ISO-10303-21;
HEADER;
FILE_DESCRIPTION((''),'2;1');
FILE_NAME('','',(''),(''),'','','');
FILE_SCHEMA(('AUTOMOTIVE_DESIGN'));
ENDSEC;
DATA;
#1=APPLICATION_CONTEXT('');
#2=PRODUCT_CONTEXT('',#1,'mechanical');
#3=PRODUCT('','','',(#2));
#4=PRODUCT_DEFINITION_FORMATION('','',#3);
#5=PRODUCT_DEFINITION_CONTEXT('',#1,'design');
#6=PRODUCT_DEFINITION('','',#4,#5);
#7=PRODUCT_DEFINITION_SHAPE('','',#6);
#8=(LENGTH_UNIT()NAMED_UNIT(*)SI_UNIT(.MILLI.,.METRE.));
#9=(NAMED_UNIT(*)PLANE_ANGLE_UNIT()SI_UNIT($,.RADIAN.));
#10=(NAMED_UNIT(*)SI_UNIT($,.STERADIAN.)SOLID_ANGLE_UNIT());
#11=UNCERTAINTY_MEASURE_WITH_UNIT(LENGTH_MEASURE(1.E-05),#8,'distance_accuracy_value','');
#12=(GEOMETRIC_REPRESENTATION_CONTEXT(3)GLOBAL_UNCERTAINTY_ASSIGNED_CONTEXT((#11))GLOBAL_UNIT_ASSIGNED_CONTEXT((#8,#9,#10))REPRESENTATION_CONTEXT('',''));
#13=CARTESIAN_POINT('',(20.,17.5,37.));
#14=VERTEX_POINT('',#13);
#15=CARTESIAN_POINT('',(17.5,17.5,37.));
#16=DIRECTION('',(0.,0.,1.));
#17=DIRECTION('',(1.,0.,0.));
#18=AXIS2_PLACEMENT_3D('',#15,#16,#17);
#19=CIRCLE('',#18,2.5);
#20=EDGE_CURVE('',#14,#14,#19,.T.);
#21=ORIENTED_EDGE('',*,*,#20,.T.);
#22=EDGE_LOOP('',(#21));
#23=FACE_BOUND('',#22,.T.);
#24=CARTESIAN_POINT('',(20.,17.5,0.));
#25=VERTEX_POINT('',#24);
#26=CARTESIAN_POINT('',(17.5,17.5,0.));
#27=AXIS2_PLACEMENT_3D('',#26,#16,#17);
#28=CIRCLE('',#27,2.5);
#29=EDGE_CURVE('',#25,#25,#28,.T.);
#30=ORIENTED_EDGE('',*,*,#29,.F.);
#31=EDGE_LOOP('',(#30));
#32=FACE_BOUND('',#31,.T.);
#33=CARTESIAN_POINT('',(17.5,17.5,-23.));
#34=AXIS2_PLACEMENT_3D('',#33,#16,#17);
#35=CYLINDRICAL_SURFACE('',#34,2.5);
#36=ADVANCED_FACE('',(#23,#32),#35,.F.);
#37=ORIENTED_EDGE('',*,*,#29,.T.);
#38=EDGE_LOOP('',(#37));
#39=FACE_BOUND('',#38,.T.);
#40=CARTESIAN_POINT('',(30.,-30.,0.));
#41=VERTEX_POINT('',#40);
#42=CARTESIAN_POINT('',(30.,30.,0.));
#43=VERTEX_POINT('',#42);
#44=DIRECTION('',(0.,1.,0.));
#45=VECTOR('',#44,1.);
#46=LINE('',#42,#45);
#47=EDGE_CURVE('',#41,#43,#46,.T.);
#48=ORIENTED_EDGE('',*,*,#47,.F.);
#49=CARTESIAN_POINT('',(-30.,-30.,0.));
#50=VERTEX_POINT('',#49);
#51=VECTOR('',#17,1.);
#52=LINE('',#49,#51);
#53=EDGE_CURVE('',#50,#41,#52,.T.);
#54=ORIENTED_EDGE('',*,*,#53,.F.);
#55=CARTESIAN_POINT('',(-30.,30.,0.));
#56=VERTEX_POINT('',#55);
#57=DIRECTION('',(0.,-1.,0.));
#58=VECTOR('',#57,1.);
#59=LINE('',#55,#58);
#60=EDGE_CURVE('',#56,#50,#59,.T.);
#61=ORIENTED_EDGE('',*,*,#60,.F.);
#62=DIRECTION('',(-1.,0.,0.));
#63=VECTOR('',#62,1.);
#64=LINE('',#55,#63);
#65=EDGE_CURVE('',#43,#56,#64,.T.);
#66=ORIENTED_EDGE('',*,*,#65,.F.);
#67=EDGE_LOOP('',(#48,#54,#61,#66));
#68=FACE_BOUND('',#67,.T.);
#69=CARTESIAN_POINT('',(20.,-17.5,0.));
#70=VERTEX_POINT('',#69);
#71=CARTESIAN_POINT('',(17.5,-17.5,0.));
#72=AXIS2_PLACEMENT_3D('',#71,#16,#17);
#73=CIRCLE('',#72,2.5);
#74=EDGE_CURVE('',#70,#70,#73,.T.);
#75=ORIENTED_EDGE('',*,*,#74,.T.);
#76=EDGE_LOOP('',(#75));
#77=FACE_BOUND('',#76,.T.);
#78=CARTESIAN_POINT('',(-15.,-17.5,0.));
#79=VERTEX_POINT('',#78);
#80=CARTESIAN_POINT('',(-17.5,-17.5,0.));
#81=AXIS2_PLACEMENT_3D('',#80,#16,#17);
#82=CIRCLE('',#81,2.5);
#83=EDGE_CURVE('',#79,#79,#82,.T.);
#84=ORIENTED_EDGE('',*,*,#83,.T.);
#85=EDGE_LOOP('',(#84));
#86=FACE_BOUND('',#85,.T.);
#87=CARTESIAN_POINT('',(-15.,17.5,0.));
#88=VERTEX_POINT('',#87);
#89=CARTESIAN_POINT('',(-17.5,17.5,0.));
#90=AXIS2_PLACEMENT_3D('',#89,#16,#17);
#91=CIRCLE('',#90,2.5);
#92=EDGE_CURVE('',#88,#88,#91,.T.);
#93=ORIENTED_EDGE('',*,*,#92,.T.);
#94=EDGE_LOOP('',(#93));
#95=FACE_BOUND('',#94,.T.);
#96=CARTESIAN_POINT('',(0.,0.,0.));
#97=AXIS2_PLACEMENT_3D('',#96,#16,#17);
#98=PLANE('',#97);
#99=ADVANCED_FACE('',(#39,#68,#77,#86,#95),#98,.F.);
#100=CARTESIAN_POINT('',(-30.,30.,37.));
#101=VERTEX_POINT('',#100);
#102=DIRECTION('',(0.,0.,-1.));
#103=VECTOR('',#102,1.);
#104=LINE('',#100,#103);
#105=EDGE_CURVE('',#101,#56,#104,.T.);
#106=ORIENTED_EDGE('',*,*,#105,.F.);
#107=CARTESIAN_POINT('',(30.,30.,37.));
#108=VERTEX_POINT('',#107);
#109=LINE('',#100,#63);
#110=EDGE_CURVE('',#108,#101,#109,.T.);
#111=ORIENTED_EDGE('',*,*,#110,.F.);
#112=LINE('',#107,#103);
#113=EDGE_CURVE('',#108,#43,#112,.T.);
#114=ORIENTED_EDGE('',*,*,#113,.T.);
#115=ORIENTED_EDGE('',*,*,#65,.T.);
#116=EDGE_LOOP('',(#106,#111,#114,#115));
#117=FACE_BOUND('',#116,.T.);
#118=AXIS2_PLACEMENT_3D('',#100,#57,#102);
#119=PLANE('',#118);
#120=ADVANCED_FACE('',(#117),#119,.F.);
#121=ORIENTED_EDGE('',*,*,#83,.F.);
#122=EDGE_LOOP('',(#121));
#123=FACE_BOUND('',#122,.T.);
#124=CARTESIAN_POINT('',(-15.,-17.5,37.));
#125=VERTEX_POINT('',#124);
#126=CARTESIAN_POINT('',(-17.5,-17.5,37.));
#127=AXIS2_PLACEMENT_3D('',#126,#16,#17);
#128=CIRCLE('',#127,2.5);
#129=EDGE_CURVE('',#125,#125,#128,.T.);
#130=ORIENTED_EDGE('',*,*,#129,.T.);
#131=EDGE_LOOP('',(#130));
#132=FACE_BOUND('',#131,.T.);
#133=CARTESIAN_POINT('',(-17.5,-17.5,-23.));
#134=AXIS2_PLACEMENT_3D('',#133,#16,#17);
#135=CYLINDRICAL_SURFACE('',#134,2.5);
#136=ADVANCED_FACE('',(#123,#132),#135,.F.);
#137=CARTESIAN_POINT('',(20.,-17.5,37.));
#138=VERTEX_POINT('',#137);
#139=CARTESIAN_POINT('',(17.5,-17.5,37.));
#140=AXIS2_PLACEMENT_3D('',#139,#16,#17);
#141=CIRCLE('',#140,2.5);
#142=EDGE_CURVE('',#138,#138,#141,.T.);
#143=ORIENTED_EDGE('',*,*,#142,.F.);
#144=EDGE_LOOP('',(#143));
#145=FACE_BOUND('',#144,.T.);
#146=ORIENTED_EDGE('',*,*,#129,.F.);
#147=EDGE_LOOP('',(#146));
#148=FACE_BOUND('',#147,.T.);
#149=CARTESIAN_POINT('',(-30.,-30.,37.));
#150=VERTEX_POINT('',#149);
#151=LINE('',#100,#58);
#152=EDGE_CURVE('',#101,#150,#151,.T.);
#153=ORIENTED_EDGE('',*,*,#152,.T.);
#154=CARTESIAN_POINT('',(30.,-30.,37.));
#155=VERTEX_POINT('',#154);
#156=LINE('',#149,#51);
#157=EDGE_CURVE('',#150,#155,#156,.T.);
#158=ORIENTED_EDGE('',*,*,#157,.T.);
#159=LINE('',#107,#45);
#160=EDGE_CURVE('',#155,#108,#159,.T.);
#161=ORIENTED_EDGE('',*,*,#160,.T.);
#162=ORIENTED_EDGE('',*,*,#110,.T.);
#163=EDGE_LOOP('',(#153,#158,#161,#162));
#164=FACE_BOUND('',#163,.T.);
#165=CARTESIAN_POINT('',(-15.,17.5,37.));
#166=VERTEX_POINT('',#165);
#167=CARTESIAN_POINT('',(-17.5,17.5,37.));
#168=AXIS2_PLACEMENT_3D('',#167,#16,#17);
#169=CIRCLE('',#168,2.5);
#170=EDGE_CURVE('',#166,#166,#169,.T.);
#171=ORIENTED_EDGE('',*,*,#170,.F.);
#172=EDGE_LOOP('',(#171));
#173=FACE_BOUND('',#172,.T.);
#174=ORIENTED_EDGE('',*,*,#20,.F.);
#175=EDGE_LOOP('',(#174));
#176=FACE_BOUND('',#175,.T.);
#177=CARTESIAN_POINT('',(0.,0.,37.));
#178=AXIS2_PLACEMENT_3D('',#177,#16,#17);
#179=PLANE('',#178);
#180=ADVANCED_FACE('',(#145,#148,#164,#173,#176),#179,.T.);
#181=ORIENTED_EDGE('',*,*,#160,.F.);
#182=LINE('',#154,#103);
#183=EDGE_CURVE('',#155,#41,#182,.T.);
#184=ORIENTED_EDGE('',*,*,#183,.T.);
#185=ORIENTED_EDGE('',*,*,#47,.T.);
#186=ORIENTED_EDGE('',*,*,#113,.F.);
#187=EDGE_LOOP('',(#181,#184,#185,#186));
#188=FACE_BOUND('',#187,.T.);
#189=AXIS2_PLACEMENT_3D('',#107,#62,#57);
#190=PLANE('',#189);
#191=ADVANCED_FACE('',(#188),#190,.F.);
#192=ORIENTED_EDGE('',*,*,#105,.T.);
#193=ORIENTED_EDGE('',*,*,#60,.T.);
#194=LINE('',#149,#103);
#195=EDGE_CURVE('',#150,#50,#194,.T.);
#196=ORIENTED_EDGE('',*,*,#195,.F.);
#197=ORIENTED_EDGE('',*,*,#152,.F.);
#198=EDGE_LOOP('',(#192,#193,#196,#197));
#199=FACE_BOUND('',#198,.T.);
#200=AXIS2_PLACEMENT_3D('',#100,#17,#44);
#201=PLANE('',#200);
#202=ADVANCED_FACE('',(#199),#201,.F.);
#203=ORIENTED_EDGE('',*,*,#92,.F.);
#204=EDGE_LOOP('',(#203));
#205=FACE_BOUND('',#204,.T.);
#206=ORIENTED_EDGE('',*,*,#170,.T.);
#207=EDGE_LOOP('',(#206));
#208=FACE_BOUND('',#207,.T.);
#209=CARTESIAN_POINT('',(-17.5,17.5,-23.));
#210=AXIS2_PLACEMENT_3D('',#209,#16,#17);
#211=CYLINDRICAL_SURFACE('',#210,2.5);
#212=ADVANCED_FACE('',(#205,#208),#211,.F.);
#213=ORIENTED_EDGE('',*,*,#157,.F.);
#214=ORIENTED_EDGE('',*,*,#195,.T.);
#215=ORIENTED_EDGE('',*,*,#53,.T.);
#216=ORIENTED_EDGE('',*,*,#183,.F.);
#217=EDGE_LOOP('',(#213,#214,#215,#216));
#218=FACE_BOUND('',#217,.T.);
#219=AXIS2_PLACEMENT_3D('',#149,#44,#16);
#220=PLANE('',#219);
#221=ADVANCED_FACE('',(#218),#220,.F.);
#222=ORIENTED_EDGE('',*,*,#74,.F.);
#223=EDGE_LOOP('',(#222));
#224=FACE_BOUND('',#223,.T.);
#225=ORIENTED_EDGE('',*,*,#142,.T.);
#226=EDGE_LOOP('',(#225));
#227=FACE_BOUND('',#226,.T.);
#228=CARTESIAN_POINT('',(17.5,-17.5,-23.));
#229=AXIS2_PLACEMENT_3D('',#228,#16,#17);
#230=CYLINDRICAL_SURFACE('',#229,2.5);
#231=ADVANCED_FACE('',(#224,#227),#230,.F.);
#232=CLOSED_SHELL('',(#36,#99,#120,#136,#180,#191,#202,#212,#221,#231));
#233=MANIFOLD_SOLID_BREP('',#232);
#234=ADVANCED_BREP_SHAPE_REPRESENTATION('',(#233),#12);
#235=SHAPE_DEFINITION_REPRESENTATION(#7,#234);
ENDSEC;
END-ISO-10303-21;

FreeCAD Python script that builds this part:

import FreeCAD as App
import Part
import Sketcher

V = App.Vector
Q = App.Units.Quantity


def add_polygon(sketch, points):
    """Adds a closed chain of lines whose ends are joined by coincident constraints."""
    first, n = sketch.GeometryCount, len(points)
    for a, b in zip(points, points[1:] + points[:1]):
        sketch.addGeometry(Part.LineSegment(App.Vector(*a, 0), App.Vector(*b, 0)), False)
    for i in range(n):
        sketch.addConstraint(Sketcher.Constraint("Coincident", first + i, 2, first + (i + 1) % n, 1))

doc = App.newDocument("Part")
body = doc.addObject("PartDesign::Body", "Body")

sketch1 = doc.addObject("Sketcher::SketchObject", "Sketch")
body.addObject(sketch1)
sketch1.AttachmentSupport = (doc.XY_Plane, [""])
sketch1.MapMode = "FlatFace"
add_polygon(sketch1, [(-30, 30), (-30, -30), (30, -30), (30, 30)])
sketch1.addConstraint(Sketcher.Constraint("Vertical", 0))
sketch1.addConstraint(Sketcher.Constraint("Horizontal", 1))
sketch1.addConstraint(Sketcher.Constraint("Vertical", 2))
sketch1.addConstraint(Sketcher.Constraint("Horizontal", 3))
sketch1.addConstraint(Sketcher.Constraint("Symmetric", 0, 2, 2, 2, -1, 1))
sketch1.addConstraint(Sketcher.Constraint("Equal", 3, 0))
sketch1.addConstraint(Sketcher.Constraint("DistanceX", 1, 1, 1, 2, Q("60 mm")))
pad1 = doc.addObject("PartDesign::Pad", "Pad")
body.addObject(pad1)
pad1.Profile = sketch1
pad1.Length = 37

sketch2 = doc.addObject("Sketcher::SketchObject", "Sketch001")
body.addObject(sketch2)
sketch2.AttachmentSupport = (doc.XY_Plane, [""])
sketch2.MapMode = "FlatFace"
sketch2.AttachmentOffset = App.Placement(V(0, 0, 37), App.Rotation())
sketch2.addGeometry(Part.Circle(V(-17.5, 17.5, 0), V(0, 0, 1), 2.5), False)
sketch2.addGeometry(Part.Circle(V(17.5, 17.5, 0), V(0, 0, 1), 2.5), False)
sketch2.addGeometry(Part.Circle(V(17.5, -17.5, 0), V(0, 0, 1), 2.5), False)
sketch2.addGeometry(Part.Circle(V(-17.5, -17.5, 0), V(0, 0, 1), 2.5), False)
sketch2.addConstraint(Sketcher.Constraint("Equal", 0, 1))
sketch2.addConstraint(Sketcher.Constraint("Equal", 1, 2))
sketch2.addConstraint(Sketcher.Constraint("Equal", 2, 3))
sketch2.addConstraint(Sketcher.Constraint("Symmetric", 0, 3, 2, 3, -1, 1))
sketch2.addConstraint(Sketcher.Constraint("Symmetric", 1, 3, 3, 3, -1, 1))
sketch2.addConstraint(Sketcher.Constraint("Symmetric", 0, 3, 1, 3, -2))
sketch2.addConstraint(Sketcher.Constraint("Diameter", 0, Q("5 mm")))
sketch2.addConstraint(Sketcher.Constraint("DistanceX", 0, 3, 1, 3, Q("35 mm")))
sketch2.addConstraint(Sketcher.Constraint("DistanceY", 2, 3, 1, 3, Q("35 mm")))
pocket1 = doc.addObject("PartDesign::Pocket", "Pocket")
body.addObject(pocket1)
pocket1.Profile = sketch2
pocket1.Length = 60

doc.recompute()
